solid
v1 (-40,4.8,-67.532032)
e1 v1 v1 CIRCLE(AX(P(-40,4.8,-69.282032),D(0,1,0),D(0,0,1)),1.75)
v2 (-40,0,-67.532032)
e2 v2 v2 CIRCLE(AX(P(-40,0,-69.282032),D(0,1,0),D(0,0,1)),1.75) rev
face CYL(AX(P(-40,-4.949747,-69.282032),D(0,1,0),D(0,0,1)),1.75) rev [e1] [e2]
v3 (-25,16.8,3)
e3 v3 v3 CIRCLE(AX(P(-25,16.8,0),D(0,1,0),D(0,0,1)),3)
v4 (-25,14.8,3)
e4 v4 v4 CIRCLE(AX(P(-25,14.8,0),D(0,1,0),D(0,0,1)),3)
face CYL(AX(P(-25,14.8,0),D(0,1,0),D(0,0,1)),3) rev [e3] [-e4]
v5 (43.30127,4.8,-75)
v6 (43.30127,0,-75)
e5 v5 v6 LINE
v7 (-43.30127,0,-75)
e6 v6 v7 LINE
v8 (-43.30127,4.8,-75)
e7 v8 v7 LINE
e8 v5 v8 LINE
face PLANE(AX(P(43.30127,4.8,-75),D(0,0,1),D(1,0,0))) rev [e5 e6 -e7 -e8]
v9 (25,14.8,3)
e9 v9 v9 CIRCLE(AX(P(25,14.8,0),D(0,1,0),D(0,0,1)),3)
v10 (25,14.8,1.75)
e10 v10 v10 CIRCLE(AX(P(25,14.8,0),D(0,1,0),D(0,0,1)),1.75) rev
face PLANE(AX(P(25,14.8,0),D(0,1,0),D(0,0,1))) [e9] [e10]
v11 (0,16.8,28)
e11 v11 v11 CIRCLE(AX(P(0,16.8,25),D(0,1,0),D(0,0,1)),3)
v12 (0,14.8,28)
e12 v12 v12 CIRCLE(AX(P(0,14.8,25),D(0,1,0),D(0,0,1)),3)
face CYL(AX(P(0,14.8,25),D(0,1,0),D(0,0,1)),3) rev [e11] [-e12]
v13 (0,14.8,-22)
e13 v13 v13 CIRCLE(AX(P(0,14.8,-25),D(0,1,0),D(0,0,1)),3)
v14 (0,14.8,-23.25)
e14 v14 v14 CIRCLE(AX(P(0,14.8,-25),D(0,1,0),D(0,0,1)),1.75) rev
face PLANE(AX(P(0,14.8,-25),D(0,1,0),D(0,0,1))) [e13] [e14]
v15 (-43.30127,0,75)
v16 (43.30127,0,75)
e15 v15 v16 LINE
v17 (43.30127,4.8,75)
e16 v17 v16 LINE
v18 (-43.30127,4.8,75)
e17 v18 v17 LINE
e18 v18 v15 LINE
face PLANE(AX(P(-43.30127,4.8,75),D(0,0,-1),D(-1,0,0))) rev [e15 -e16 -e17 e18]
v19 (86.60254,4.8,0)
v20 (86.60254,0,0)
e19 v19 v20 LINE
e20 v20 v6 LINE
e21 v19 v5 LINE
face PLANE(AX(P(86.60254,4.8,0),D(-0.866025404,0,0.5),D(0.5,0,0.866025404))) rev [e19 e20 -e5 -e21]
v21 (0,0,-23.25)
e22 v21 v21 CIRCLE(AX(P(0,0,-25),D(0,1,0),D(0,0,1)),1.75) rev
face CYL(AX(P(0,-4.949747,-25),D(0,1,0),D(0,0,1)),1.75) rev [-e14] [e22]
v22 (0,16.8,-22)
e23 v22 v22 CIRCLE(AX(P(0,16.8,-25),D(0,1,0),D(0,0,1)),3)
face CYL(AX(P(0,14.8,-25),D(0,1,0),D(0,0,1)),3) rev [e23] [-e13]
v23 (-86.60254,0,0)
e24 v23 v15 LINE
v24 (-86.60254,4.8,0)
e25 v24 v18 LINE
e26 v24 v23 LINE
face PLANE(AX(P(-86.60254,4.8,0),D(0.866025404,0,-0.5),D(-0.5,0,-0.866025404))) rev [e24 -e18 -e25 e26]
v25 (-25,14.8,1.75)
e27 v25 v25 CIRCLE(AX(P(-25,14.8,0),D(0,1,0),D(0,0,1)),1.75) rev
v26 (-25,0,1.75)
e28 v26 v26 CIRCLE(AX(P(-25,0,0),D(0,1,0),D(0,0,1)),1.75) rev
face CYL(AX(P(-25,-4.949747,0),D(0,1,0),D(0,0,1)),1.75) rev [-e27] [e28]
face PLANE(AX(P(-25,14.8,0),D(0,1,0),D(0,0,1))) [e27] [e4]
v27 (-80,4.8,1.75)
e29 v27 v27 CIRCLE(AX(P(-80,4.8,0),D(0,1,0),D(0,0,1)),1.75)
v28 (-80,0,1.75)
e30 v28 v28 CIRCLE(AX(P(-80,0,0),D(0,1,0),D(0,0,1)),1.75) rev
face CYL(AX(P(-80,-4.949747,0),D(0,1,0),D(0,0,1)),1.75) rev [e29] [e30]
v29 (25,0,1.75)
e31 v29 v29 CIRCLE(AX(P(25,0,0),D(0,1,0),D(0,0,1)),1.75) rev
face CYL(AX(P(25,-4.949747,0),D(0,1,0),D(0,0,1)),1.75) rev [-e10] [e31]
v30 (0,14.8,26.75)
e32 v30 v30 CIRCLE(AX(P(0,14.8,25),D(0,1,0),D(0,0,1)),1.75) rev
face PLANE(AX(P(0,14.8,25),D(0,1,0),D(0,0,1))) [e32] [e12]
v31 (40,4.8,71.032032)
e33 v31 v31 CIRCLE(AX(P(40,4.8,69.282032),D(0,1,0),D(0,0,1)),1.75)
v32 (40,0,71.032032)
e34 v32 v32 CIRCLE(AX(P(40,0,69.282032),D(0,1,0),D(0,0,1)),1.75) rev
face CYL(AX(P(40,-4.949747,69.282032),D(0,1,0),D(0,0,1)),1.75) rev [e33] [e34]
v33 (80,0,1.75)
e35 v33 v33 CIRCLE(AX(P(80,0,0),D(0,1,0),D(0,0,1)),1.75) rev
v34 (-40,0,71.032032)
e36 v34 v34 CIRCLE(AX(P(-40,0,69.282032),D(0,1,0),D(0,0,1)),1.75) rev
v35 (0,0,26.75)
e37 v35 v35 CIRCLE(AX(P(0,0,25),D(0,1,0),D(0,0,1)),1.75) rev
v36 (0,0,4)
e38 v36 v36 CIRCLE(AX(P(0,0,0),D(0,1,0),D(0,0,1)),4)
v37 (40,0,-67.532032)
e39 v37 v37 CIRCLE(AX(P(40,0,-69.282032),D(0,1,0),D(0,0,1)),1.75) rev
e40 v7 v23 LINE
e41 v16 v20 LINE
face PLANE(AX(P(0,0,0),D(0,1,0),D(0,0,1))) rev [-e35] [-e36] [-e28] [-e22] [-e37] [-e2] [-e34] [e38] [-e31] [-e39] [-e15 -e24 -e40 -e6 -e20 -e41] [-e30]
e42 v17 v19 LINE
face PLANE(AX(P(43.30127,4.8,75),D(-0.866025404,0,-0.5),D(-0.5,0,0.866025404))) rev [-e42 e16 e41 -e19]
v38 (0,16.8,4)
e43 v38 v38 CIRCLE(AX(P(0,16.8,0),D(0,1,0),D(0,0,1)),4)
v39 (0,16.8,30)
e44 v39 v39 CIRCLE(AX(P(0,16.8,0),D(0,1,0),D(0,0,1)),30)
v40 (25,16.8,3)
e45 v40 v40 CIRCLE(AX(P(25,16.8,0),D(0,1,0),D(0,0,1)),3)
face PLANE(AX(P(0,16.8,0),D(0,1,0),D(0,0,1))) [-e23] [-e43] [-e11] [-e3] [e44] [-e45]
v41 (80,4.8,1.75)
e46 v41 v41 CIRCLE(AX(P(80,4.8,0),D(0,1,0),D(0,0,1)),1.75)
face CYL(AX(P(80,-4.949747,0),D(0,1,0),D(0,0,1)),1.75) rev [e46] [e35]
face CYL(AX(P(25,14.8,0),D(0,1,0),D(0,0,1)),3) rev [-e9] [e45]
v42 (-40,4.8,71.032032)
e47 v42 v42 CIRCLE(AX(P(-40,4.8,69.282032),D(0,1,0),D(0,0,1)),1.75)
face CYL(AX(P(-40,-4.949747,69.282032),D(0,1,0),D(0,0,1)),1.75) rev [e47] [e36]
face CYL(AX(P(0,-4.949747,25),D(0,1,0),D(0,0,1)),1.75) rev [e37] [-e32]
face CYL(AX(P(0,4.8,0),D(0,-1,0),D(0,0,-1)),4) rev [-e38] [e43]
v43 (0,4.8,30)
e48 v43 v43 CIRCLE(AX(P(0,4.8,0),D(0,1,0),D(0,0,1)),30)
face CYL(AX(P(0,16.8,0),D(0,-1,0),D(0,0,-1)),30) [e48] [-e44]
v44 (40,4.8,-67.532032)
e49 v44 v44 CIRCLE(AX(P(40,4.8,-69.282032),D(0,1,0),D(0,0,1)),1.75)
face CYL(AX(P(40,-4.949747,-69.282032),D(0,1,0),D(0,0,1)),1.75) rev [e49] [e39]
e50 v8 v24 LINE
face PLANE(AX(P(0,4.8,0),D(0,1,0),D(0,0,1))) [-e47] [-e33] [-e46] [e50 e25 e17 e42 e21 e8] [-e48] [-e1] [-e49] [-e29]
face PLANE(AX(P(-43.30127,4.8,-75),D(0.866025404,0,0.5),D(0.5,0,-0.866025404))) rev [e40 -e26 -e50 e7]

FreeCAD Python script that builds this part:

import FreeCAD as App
import Part
import Sketcher
Q = App.Units.Quantity


def add_polygon(sketch, points):
    """Adds a closed chain of lines whose ends are joined by coincident constraints."""
    first, n = sketch.GeometryCount, len(points)
    for a, b in zip(points, points[1:] + points[:1]):
        sketch.addGeometry(Part.LineSegment(App.Vector(*a, 0), App.Vector(*b, 0)), False)
    for i in range(n):
        sketch.addConstraint(Sketcher.Constraint("Coincident", first + i, 2, first + (i + 1) % n, 1))

doc = App.newDocument("Part")
body = doc.addObject("PartDesign::Body", "Body")

# Sketch on XZ plane
sketch1 = body.newObject("Sketcher::SketchObject", "Sketch")
sketch1.AttachmentSupport = (doc.getObject("XZ_Plane"), [""])
sketch1.MapMode = "FlatFace"
add_polygon(sketch1, [(86.60254, 0), (43.30127, -75), (-43.30127, -75), (-86.60254, 0), (-43.30127, 75), (43.30127, 75)])  # lines 0-5
sketch1.addGeometry(Part.Circle(App.Vector(0, 0, 0), App.Vector(0, 0, 1), 4), False)  # 6
sketch1.addConstraint(Sketcher.Constraint("Horizontal", 1))
sketch1.addConstraint(Sketcher.Constraint("Horizontal", 4))
sketch1.addConstraint(Sketcher.Constraint("Coincident", 6, 3, -1, 1))
sketch1.addConstraint(Sketcher.Constraint("Symmetric", 0, 2, 3, 2, -1, 1))
sketch1.addConstraint(Sketcher.Constraint("Symmetric", 2, 2, 5, 2, -1, 1))
sketch1.addConstraint(Sketcher.Constraint("PointOnObject", 2, 2, -1))
sketch1.addConstraint(Sketcher.Constraint("Parallel", 2, 5))
sketch1.addConstraint(Sketcher.Constraint("Vertical", 1, 2, 3, 2))
sketch1.addConstraint(Sketcher.Constraint("Diameter", 6, 8.0))
sketch1.addConstraint(Sketcher.Constraint("Angle", 0, Q("-120 deg")))
sketch1.addConstraint(Sketcher.Constraint("DistanceY", 0, 2, -1, 1, 75.0))
sketch1.addConstraint(Sketcher.Constraint("DistanceX", 1, 2, 1, 1, 86.60254))
pad1 = body.newObject("PartDesign::Pad", "Pad")
pad1.Profile = sketch1
pad1.Length = 4.8
pad1.Reversed = True

# Sketch on XZ plane
sketch2 = body.newObject("Sketcher::SketchObject", "Sketch001")
sketch2.AttachmentSupport = (doc.getObject("XZ_Plane"), [""])
sketch2.MapMode = "FlatFace"
sketch2.AttachmentOffset = App.Placement(App.Vector(0, 0, -4.8), App.Rotation())
sketch2.addGeometry(Part.Circle(App.Vector(0, 0, 0), App.Vector(0, 0, 1), 30), False)
sketch2.addGeometry(Part.Circle(App.Vector(0, 0, 0), App.Vector(0, 0, 1), 4), False)
sketch2.addConstraint(Sketcher.Constraint("Coincident", 0, 3, -1, 1))
sketch2.addConstraint(Sketcher.Constraint("Coincident", 1, 3, -1, 1))
sketch2.addConstraint(Sketcher.Constraint("Diameter", 0, 60.0))
sketch2.addConstraint(Sketcher.Constraint("Diameter", 1, 8.0))
pad2 = body.newObject("PartDesign::Pad", "Pad001")
pad2.Profile = sketch2
pad2.Length = 12
pad2.Reversed = True

# Sketch on XZ plane
sketch3 = body.newObject("Sketcher::SketchObject", "Sketch002")
sketch3.AttachmentSupport = (doc.getObject("XZ_Plane"), [""])
sketch3.MapMode = "FlatFace"
sketch3.AttachmentOffset = App.Placement(App.Vector(0, 0, -16.8), App.Rotation())
sketch3.addGeometry(Part.Circle(App.Vector(25, 0, 0), App.Vector(0, 0, 1), 1.75), False)
sketch3.addGeometry(Part.Circle(App.Vector(0, 25, 0), App.Vector(0, 0, 1), 1.75), False)
sketch3.addGeometry(Part.Circle(App.Vector(-25, 0, 0), App.Vector(0, 0, 1), 1.75), False)
sketch3.addGeometry(Part.Circle(App.Vector(0, -25, 0), App.Vector(0, 0, 1), 1.75), False)
sketch3.addGeometry(Part.Circle(App.Vector(40, -69.282032, 0), App.Vector(0, 0, 1), 1.75), False)
sketch3.addGeometry(Part.Circle(App.Vector(80, 0, 0), App.Vector(0, 0, 1), 1.75), False)
sketch3.addGeometry(Part.Circle(App.Vector(40, 69.282032, 0), App.Vector(0, 0, 1), 1.75), False)
sketch3.addGeometry(Part.Circle(App.Vector(-40, 69.282032, 0), App.Vector(0, 0, 1), 1.75), False)
sketch3.addGeometry(Part.Circle(App.Vector(-80, 0, 0), App.Vector(0, 0, 1), 1.75), False)
sketch3.addGeometry(Part.Circle(App.Vector(-40, -69.282032, 0), App.Vector(0, 0, 1), 1.75), False)
sketch3.addConstraint(Sketcher.Constraint("Equal", 0, 1))
sketch3.addConstraint(Sketcher.Constraint("Equal", 1, 2))
sketch3.addConstraint(Sketcher.Constraint("Equal", 2, 3))
sketch3.addConstraint(Sketcher.Constraint("Equal", 3, 4))
sketch3.addConstraint(Sketcher.Constraint("Equal", 4, 5))
sketch3.addConstraint(Sketcher.Constraint("Equal", 5, 6))
sketch3.addConstraint(Sketcher.Constraint("Equal", 6, 7))
sketch3.addConstraint(Sketcher.Constraint("Equal", 7, 8))
sketch3.addConstraint(Sketcher.Constraint("Equal", 8, 9))
sketch3.addConstraint(Sketcher.Constraint("Symmetric", 0, 3, 2, 3, -1, 1))
sketch3.addConstraint(Sketcher.Constraint("Symmetric", 1, 3, 3, 3, -1, 1))
sketch3.addConstraint(Sketcher.Constraint("Symmetric", 4, 3, 7, 3, -1, 1))
sketch3.addConstraint(Sketcher.Constraint("Symmetric", 5, 3, 8, 3, -1, 1))
sketch3.addConstraint(Sketcher.Constraint("Symmetric", 6, 3, 9, 3, -1, 1))
sketch3.addConstraint(Sketcher.Constraint("Symmetric", 6, 3, 7, 3, -2))
sketch3.addConstraint(Sketcher.Constraint("PointOnObject", 0, 3, -1))
sketch3.addConstraint(Sketcher.Constraint("PointOnObject", 1, 3, -2))
sketch3.addConstraint(Sketcher.Constraint("PointOnObject", 5, 3, -1))
sketch3.addConstraint(Sketcher.Constraint("Diameter", 0, 3.5))
sketch3.addConstraint(Sketcher.Constraint("DistanceX", -1, 1, 0, 3, 25.0))
sketch3.addConstraint(Sketcher.Constraint("DistanceY", -1, 1, 1, 3, 25.0))
sketch3.addConstraint(Sketcher.Constraint("DistanceX", -1, 1, 4, 3, 40.0))
sketch3.addConstraint(Sketcher.Constraint("DistanceX", -1, 1, 5, 3, 80.0))
sketch3.addConstraint(Sketcher.Constraint("DistanceY", 4, 3, -1, 1, 69.282032))
pocket1 = body.newObject("PartDesign::Pocket", "Pocket")
pocket1.Profile = sketch3
pocket1.Length = 16.8
pocket1.Reversed = True

# Sketch on XZ plane
sketch4 = body.newObject("Sketcher::SketchObject", "Sketch003")
sketch4.AttachmentSupport = (doc.getObject("XZ_Plane"), [""])
sketch4.MapMode = "FlatFace"
sketch4.AttachmentOffset = App.Placement(App.Vector(0, 0, -16.8), App.Rotation())
sketch4.addGeometry(Part.Circle(App.Vector(0, -25, 0), App.Vector(0, 0, 1), 3), False)
sketch4.addGeometry(Part.Circle(App.Vector(25, 0, 0), App.Vector(0, 0, 1), 3), False)
sketch4.addGeometry(Part.Circle(App.Vector(0, 25, 0), App.Vector(0, 0, 1), 3), False)
sketch4.addGeometry(Part.Circle(App.Vector(-25, 0, 0), App.Vector(0, 0, 1), 3), False)
sketch4.addConstraint(Sketcher.Constraint("Equal", 0, 1))
sketch4.addConstraint(Sketcher.Constraint("Equal", 1, 2))
sketch4.addConstraint(Sketcher.Constraint("Equal", 2, 3))
sketch4.addConstraint(Sketcher.Constraint("Symmetric", 0, 3, 2, 3, -1, 1))
sketch4.addConstraint(Sketcher.Constraint("Symmetric", 1, 3, 3, 3, -1, 1))
sketch4.addConstraint(Sketcher.Constraint("PointOnObject", 0, 3, -2))
sketch4.addConstraint(Sketcher.Constraint("PointOnObject", 1, 3, -1))
sketch4.addConstraint(Sketcher.Constraint("Diameter", 0, 6.0))
sketch4.addConstraint(Sketcher.Constraint("DistanceY", 0, 3, -1, 1, 25.0))
sketch4.addConstraint(Sketcher.Constraint("DistanceX", -1, 1, 1, 3, 25.0))
pocket2 = body.newObject("PartDesign::Pocket", "Pocket001")
pocket2.Profile = sketch4
pocket2.Length = 2
pocket2.Reversed = True

doc.recompute()
